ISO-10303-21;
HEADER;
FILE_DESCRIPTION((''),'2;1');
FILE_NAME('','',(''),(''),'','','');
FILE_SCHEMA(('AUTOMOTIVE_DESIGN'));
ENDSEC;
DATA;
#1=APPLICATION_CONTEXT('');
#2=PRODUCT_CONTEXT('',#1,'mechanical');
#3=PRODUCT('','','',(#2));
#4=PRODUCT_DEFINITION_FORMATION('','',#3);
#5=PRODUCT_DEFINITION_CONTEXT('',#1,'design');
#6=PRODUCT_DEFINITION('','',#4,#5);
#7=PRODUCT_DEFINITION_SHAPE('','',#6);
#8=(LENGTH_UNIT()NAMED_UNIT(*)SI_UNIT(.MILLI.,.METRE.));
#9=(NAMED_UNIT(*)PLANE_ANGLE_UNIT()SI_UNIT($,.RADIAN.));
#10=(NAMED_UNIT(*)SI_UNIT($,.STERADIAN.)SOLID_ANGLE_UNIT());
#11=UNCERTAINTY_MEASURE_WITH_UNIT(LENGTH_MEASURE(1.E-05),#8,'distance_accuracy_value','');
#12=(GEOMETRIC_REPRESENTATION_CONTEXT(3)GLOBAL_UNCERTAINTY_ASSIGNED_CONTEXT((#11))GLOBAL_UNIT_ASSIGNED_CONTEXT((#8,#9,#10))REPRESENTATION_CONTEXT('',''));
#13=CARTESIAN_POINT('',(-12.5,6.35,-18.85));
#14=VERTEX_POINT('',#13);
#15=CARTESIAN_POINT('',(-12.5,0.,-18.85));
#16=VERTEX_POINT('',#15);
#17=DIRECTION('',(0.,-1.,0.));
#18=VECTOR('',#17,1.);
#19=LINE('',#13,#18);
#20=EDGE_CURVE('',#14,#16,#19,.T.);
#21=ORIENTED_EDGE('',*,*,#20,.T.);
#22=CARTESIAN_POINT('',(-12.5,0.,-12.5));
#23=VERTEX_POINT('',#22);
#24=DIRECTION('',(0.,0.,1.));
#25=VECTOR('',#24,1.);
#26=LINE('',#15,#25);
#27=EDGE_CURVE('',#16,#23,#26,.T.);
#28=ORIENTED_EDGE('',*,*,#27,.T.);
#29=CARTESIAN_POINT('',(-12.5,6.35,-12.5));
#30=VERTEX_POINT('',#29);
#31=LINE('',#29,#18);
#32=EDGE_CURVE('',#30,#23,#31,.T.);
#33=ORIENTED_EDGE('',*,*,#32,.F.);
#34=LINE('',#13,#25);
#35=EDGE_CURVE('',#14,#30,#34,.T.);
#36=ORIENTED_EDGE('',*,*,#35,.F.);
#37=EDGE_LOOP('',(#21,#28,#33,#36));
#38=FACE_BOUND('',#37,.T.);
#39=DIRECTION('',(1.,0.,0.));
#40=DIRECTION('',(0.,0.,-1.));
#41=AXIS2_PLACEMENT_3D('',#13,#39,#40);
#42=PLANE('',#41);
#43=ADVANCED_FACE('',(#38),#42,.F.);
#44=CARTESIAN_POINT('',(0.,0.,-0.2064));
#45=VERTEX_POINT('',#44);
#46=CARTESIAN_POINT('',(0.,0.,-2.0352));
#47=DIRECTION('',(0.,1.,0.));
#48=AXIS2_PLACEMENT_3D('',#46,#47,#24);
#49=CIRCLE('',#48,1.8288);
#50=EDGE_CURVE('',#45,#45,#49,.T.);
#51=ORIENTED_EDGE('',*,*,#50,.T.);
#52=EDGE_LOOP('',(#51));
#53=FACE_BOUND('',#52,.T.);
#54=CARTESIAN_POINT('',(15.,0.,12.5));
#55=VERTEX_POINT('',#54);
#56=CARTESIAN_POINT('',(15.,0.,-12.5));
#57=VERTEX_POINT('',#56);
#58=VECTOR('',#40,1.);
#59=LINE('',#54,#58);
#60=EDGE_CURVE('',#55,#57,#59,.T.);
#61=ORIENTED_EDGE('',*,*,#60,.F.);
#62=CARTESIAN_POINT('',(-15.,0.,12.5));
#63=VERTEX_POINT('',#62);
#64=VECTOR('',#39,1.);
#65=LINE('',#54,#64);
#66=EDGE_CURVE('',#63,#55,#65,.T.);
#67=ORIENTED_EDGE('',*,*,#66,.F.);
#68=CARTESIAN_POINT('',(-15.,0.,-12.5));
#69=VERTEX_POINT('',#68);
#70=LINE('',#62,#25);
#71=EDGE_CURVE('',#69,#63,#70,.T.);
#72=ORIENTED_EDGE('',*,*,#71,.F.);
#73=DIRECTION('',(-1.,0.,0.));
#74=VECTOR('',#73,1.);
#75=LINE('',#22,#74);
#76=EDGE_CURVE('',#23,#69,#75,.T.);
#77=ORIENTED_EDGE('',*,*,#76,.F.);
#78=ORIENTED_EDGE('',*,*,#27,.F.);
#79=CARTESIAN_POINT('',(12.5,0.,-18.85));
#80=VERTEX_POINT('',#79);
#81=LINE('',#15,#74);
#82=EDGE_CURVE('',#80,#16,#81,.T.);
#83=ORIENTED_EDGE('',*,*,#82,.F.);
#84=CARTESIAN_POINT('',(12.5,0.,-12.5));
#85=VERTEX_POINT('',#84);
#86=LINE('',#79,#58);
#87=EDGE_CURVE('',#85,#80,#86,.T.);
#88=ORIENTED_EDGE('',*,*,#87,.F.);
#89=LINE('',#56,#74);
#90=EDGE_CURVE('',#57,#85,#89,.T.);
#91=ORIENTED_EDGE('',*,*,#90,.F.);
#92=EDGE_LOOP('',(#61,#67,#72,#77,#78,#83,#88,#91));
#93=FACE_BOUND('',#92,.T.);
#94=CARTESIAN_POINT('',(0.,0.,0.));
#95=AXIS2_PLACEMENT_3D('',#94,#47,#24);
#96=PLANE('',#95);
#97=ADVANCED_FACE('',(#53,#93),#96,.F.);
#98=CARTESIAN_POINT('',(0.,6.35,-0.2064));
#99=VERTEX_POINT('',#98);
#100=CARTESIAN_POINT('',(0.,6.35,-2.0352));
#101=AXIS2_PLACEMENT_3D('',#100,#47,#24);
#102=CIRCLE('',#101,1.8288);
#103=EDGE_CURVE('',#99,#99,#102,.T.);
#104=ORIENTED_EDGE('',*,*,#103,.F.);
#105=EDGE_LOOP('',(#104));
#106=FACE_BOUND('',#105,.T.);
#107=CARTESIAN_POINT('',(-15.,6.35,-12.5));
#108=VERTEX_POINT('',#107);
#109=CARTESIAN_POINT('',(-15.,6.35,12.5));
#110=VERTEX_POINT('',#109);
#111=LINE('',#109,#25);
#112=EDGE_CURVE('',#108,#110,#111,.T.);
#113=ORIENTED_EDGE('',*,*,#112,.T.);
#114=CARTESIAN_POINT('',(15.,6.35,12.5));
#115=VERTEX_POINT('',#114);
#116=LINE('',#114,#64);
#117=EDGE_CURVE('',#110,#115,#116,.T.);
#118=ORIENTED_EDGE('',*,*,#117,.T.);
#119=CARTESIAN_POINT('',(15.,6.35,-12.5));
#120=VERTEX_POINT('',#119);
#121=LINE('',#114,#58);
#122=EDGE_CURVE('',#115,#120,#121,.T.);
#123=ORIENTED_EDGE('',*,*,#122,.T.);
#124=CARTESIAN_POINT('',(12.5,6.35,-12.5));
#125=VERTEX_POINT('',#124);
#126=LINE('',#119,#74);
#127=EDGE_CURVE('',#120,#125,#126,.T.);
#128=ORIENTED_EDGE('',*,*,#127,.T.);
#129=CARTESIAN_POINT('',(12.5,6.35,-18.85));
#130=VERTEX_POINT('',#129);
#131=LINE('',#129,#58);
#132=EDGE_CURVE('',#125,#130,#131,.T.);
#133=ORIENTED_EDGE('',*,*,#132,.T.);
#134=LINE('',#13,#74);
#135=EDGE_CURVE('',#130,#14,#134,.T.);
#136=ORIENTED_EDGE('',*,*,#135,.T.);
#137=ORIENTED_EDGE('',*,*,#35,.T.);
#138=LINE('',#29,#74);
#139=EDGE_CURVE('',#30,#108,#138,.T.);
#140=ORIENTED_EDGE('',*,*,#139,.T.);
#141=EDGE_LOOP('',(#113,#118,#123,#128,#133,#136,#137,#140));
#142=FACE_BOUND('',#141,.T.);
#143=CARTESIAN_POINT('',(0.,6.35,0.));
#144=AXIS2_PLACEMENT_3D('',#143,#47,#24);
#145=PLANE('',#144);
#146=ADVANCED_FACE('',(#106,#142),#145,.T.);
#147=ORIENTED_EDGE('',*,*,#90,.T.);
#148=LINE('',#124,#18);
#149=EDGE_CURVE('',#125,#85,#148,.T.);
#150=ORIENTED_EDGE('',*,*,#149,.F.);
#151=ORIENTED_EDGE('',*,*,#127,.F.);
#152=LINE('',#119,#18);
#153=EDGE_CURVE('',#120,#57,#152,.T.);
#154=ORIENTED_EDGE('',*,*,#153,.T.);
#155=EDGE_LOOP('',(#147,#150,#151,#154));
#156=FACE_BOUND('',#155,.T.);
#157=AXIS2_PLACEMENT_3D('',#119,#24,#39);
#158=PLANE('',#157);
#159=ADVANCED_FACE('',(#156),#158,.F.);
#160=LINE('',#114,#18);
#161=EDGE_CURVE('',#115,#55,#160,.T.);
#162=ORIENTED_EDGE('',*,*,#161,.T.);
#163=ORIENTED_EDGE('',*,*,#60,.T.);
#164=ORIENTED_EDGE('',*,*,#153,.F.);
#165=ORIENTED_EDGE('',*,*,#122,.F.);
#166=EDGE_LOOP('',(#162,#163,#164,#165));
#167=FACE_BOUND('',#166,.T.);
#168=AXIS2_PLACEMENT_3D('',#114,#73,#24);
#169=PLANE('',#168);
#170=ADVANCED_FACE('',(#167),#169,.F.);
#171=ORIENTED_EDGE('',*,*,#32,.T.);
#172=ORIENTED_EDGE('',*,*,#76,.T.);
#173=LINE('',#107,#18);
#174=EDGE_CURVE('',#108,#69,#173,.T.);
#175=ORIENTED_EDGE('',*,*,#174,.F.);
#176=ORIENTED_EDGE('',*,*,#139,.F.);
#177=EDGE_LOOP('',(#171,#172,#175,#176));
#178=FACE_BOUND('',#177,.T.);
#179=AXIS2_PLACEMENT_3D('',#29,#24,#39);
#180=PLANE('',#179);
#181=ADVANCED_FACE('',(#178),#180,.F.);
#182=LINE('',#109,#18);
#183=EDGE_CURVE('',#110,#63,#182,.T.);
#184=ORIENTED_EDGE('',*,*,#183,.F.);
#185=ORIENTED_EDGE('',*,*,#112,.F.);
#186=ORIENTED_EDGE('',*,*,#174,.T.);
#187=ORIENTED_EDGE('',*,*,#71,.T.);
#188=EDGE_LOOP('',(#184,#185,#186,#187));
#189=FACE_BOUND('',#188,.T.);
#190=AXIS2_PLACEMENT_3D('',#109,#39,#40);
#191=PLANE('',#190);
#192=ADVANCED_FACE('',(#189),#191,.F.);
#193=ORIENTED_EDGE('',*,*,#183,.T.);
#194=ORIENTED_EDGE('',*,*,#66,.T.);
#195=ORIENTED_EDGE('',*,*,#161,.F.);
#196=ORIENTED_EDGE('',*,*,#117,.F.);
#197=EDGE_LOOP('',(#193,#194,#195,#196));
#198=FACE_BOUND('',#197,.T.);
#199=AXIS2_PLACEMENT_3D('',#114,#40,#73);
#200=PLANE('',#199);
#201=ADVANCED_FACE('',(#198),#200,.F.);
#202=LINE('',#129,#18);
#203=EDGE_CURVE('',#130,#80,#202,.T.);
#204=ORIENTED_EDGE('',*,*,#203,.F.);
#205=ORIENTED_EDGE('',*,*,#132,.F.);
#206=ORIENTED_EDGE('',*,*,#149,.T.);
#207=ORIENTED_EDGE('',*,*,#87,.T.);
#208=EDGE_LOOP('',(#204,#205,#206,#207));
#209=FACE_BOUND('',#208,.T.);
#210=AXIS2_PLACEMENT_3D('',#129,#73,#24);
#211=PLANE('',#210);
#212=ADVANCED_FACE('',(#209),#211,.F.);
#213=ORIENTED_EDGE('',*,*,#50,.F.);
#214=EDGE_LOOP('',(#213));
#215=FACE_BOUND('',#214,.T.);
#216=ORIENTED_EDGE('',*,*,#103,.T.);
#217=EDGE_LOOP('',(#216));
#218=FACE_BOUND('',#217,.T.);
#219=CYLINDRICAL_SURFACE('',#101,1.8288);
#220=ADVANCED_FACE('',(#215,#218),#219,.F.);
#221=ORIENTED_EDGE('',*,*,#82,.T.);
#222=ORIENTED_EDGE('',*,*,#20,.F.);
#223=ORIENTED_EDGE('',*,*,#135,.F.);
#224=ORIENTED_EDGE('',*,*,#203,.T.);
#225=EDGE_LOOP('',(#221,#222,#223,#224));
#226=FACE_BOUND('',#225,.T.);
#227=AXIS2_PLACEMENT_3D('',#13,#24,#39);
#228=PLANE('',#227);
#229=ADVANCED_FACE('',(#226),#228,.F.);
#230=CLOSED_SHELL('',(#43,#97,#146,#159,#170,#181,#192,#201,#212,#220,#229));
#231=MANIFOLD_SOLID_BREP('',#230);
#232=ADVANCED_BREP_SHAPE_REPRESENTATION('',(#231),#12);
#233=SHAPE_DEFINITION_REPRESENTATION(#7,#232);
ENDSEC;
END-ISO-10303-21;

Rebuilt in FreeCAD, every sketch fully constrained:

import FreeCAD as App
import Part
import Sketcher

doc = App.newDocument("Part")
body = doc.addObject("PartDesign::Body", "Body")

sketch1 = body.newObject("Sketcher::SketchObject", "Sketch")
sketch1.AttachmentSupport = (doc.getObject("XZ_Plane"), [""])
sketch1.MapMode = "FlatFace"
sketch1.addGeometry([
    Part.LineSegment(App.Vector(-12.5, -12.5, 0), App.Vector(-15, -12.5, 0)),
    Part.LineSegment(App.Vector(-15, -12.5, 0), App.Vector(-15, 12.5, 0)),
    Part.LineSegment(App.Vector(-15, 12.5, 0), App.Vector(15, 12.5, 0)),
    Part.LineSegment(App.Vector(15, 12.5, 0), App.Vector(15, -12.5, 0)),
    Part.LineSegment(App.Vector(15, -12.5, 0), App.Vector(12.5, -12.5, 0)),
    Part.LineSegment(App.Vector(12.5, -12.5, 0), App.Vector(12.5, -18.9, 0)),
    Part.LineSegment(App.Vector(12.5, -18.9, 0), App.Vector(-12.5, -18.9, 0)),
    Part.LineSegment(App.Vector(-12.5, -18.9, 0), App.Vector(-12.5, -12.5, 0)),
], False)
sketch1.addConstraint([
    Sketcher.Constraint("Coincident", 0, 2, 1, 1),
    Sketcher.Constraint("Coincident", 1, 2, 2, 1),
    Sketcher.Constraint("Coincident", 2, 2, 3, 1),
    Sketcher.Constraint("Coincident", 3, 2, 4, 1),
    Sketcher.Constraint("Coincident", 4, 2, 5, 1),
    Sketcher.Constraint("Coincident", 5, 2, 6, 1),
    Sketcher.Constraint("Coincident", 6, 2, 7, 1),
    Sketcher.Constraint("Coincident", 7, 2, 0, 1),
    Sketcher.Constraint("Horizontal", 0),
    Sketcher.Constraint("Vertical", 1),
    Sketcher.Constraint("Horizontal", 2),
    Sketcher.Constraint("Vertical", 3),
    Sketcher.Constraint("Horizontal", 4),
    Sketcher.Constraint("Vertical", 5),
    Sketcher.Constraint("Horizontal", 6),
    Sketcher.Constraint("Vertical", 7),
    Sketcher.Constraint("Symmetric", 0, 2, 2, 2, -1, 1),
    Sketcher.Constraint("Symmetric", 4, 2, 7, 2, -2),
    Sketcher.Constraint("Equal", 6, 1),
    Sketcher.Constraint("DistanceX", 2, 1, 2, 2, 30.0),
    Sketcher.Constraint("DistanceX", 6, 2, 6, 1, 25.0),
    Sketcher.Constraint("DistanceY", 5, 2, 5, 1, 6.35),
])
pad1 = body.newObject("PartDesign::Pad", "Pad")
pad1.Profile = sketch1
pad1.Length = 6.35
pad1.Reversed = True

sketch2 = body.newObject("Sketcher::SketchObject", "Sketch001")
sketch2.AttachmentSupport = (doc.getObject("XZ_Plane"), [""])
sketch2.MapMode = "FlatFace"
sketch2.AttachmentOffset = App.Placement(App.Vector(0, 0, -6.35), App.Rotation())
sketch2.addGeometry(Part.Circle(App.Vector(0, -2, 0), App.Vector(0, 0, 1), 1.8), False)
sketch2.addConstraint([
    Sketcher.Constraint("PointOnObject", 0, 3, -2),
    Sketcher.Constraint("Diameter", 0, 3.6576),
    Sketcher.Constraint("DistanceY", 0, 3, -1, 1, 2.0352),
])
doc.recompute()
hole = body.newObject("PartDesign::Hole", "Hole")
hole.Profile = sketch2
hole.ThreadType = "None"
hole.Diameter = 3.6576
hole.DepthType = "ThroughAll"
hole.Reversed = True

doc.recompute()
